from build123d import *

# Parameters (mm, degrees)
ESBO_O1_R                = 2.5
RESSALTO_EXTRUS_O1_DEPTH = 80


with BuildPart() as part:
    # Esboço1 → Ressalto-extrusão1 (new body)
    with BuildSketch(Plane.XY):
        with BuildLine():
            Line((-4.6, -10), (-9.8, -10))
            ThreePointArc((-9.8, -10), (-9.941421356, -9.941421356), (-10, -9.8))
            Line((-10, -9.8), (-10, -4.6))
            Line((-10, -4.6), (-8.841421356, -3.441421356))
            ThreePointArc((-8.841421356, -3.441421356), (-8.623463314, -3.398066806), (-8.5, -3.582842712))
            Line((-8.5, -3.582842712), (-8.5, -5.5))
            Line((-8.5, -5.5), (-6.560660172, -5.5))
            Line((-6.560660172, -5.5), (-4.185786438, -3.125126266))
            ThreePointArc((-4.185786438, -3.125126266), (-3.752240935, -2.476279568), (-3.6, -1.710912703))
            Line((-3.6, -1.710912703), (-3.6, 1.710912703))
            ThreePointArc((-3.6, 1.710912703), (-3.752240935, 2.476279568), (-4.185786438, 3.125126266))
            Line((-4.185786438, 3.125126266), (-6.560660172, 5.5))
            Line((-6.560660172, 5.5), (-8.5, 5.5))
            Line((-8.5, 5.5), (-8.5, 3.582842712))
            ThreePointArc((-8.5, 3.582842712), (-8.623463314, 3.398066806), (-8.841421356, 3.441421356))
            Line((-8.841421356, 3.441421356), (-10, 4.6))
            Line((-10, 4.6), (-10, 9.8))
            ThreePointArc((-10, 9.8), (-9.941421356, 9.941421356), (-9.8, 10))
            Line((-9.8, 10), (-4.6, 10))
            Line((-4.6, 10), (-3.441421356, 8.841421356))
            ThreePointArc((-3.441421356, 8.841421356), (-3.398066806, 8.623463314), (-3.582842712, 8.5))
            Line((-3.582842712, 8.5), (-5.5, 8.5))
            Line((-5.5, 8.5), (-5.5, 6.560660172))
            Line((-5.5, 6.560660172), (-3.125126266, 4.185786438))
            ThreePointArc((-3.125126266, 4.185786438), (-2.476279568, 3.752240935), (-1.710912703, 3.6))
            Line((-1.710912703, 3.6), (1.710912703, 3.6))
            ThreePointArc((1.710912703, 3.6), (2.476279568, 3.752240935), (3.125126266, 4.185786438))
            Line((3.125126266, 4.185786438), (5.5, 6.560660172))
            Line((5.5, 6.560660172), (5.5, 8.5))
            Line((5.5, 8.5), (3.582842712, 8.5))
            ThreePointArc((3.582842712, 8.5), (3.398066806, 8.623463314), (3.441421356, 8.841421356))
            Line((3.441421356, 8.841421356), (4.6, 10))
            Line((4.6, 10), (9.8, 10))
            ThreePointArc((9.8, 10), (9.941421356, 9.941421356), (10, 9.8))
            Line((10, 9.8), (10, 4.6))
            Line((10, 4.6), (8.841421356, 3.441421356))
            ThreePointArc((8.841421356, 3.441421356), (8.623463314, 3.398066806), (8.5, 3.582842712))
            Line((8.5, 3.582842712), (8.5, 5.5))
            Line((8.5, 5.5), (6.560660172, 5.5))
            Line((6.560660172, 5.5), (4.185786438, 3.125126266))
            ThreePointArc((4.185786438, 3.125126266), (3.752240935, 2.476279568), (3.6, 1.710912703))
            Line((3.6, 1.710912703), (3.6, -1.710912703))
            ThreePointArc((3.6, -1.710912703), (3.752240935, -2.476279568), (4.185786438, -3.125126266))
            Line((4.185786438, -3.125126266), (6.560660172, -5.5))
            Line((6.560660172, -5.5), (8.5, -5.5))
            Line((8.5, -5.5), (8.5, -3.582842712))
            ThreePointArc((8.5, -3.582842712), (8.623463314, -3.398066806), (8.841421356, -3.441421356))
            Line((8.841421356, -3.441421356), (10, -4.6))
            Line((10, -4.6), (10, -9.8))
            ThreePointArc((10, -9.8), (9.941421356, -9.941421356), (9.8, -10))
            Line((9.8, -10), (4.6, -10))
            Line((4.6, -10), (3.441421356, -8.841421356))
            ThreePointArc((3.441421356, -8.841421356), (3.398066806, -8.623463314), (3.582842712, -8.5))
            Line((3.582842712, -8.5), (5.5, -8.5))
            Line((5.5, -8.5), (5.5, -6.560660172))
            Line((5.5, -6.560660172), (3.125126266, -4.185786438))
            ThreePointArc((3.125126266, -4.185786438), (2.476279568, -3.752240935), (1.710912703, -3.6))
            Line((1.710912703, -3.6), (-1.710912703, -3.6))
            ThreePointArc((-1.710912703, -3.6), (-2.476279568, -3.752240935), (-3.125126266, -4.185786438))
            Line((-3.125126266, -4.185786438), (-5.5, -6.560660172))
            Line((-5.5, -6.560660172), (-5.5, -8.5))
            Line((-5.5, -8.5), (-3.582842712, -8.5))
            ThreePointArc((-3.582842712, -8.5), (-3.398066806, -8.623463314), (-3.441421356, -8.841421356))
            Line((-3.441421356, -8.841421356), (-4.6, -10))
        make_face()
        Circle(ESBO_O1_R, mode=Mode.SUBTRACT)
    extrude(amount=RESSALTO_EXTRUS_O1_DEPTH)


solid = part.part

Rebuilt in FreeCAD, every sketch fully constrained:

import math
import FreeCAD as App
import Part
import Sketcher

V = App.Vector
Q = App.Units.Quantity

doc = App.newDocument("Part")
body = doc.addObject("PartDesign::Body", "Body")

# Sketch on XY plane
sketch1 = doc.addObject("Sketcher::SketchObject", "Sketch")
body.addObject(sketch1)
sketch1.AttachmentSupport = (doc.XY_Plane, [""])
sketch1.MapMode = "FlatFace"
sketch1.addGeometry(Part.LineSegment(V(-9.8, -10, 0), V(-4.6, -10, 0)), False)
sketch1.addGeometry(Part.LineSegment(V(-4.6, -10, 0), V(-3.44, -8.84, 0)), False)
sketch1.addGeometry(Part.ArcOfCircle(Part.Circle(V(-3.58, -8.7, 0), V(0, 0, 1), 0.2), math.radians(-45), math.radians(90)), False)
sketch1.addGeometry(Part.LineSegment(V(-3.58, -8.5, 0), V(-5.5, -8.5, 0)), False)
sketch1.addGeometry(Part.LineSegment(V(-5.5, -8.5, 0), V(-5.5, -6.56, 0)), False)
sketch1.addGeometry(Part.LineSegment(V(-5.5, -6.56, 0), V(-3.13, -4.19, 0)), False)
sketch1.addGeometry(Part.ArcOfCircle(Part.Circle(V(-1.71, -5.6, 0), V(0, 0, 1), 2), math.radians(90), math.radians(135)), False)
sketch1.addGeometry(Part.LineSegment(V(-1.71, -3.6, 0), V(1.71, -3.6, 0)), False)
sketch1.addGeometry(Part.ArcOfCircle(Part.Circle(V(1.71, -5.6, 0), V(0, 0, 1), 2), math.radians(45), math.radians(90)), False)
sketch1.addGeometry(Part.LineSegment(V(3.13, -4.19, 0), V(5.5, -6.56, 0)), False)
sketch1.addGeometry(Part.LineSegment(V(5.5, -6.56, 0), V(5.5, -8.5, 0)), False)
sketch1.addGeometry(Part.LineSegment(V(5.5, -8.5, 0), V(3.58, -8.5, 0)), False)
sketch1.addGeometry(Part.ArcOfCircle(Part.Circle(V(3.58, -8.7, 0), V(0, 0, 1), 0.2), math.radians(90), math.radians(225)), False)
sketch1.addGeometry(Part.LineSegment(V(3.44, -8.84, 0), V(4.6, -10, 0)), False)
sketch1.addGeometry(Part.LineSegment(V(4.6, -10, 0), V(9.8, -10, 0)), False)
sketch1.addGeometry(Part.ArcOfCircle(Part.Circle(V(9.8, -9.8, 0), V(0, 0, 1), 0.2), math.radians(-90), math.radians(0)), False)
sketch1.addGeometry(Part.LineSegment(V(10, -9.8, 0), V(10, -4.6, 0)), False)
sketch1.addGeometry(Part.LineSegment(V(10, -4.6, 0), V(8.84, -3.44, 0)), False)
sketch1.addGeometry(Part.ArcOfCircle(Part.Circle(V(8.7, -3.58, 0), V(0, 0, 1), 0.2), math.radians(45), math.radians(180)), False)
sketch1.addGeometry(Part.LineSegment(V(8.5, -3.58, 0), V(8.5, -5.5, 0)), False)
sketch1.addGeometry(Part.LineSegment(V(8.5, -5.5, 0), V(6.56, -5.5, 0)), False)
sketch1.addGeometry(Part.LineSegment(V(6.56, -5.5, 0), V(4.19, -3.13, 0)), False)
sketch1.addGeometry(Part.ArcOfCircle(Part.Circle(V(5.6, -1.71, 0), V(0, 0, 1), 2), math.radians(180), math.radians(225)), False)
sketch1.addGeometry(Part.LineSegment(V(3.6, -1.71, 0), V(3.6, 1.71, 0)), False)
sketch1.addGeometry(Part.ArcOfCircle(Part.Circle(V(5.6, 1.71, 0), V(0, 0, 1), 2), math.radians(135), math.radians(180)), False)
sketch1.addGeometry(Part.LineSegment(V(4.19, 3.13, 0), V(6.56, 5.5, 0)), False)
sketch1.addGeometry(Part.LineSegment(V(6.56, 5.5, 0), V(8.5, 5.5, 0)), False)
sketch1.addGeometry(Part.LineSegment(V(8.5, 5.5, 0), V(8.5, 3.58, 0)), False)
sketch1.addGeometry(Part.ArcOfCircle(Part.Circle(V(8.7, 3.58, 0), V(0, 0, 1), 0.2), math.radians(-180), math.radians(-45)), False)
sketch1.addGeometry(Part.LineSegment(V(8.84, 3.44, 0), V(10, 4.6, 0)), False)
sketch1.addGeometry(Part.LineSegment(V(10, 4.6, 0), V(10, 9.8, 0)), False)
sketch1.addGeometry(Part.ArcOfCircle(Part.Circle(V(9.8, 9.8, 0), V(0, 0, 1), 0.2), math.radians(0), math.radians(90)), False)
sketch1.addGeometry(Part.LineSegment(V(9.8, 10, 0), V(4.6, 10, 0)), False)
sketch1.addGeometry(Part.LineSegment(V(4.6, 10, 0), V(3.44, 8.84, 0)), False)
sketch1.addGeometry(Part.ArcOfCircle(Part.Circle(V(3.58, 8.7, 0), V(0, 0, 1), 0.2), math.radians(135), math.radians(270)), False)
sketch1.addGeometry(Part.LineSegment(V(3.58, 8.5, 0), V(5.5, 8.5, 0)), False)
sketch1.addGeometry(Part.LineSegment(V(5.5, 8.5, 0), V(5.5, 6.56, 0)), False)
sketch1.addGeometry(Part.LineSegment(V(5.5, 6.56, 0), V(3.13, 4.19, 0)), False)
sketch1.addGeometry(Part.ArcOfCircle(Part.Circle(V(1.71, 5.6, 0), V(0, 0, 1), 2), math.radians(-90), math.radians(-45)), False)
sketch1.addGeometry(Part.LineSegment(V(1.71, 3.6, 0), V(-1.71, 3.6, 0)), False)
sketch1.addGeometry(Part.ArcOfCircle(Part.Circle(V(-1.71, 5.6, 0), V(0, 0, 1), 2), math.radians(-135), math.radians(-90)), False)
sketch1.addGeometry(Part.LineSegment(V(-3.13, 4.19, 0), V(-5.5, 6.56, 0)), False)
sketch1.addGeometry(Part.LineSegment(V(-5.5, 6.56, 0), V(-5.5, 8.5, 0)), False)
sketch1.addGeometry(Part.LineSegment(V(-5.5, 8.5, 0), V(-3.58, 8.5, 0)), False)
sketch1.addGeometry(Part.ArcOfCircle(Part.Circle(V(-3.58, 8.7, 0), V(0, 0, 1), 0.2), math.radians(-90), math.radians(45)), False)
sketch1.addGeometry(Part.LineSegment(V(-3.44, 8.84, 0), V(-4.6, 10, 0)), False)
sketch1.addGeometry(Part.LineSegment(V(-4.6, 10, 0), V(-9.8, 10, 0)), False)
sketch1.addGeometry(Part.ArcOfCircle(Part.Circle(V(-9.8, 9.8, 0), V(0, 0, 1), 0.2), math.radians(90), math.radians(180)), False)
sketch1.addGeometry(Part.LineSegment(V(-10, 9.8, 0), V(-10, 4.6, 0)), False)
sketch1.addGeometry(Part.LineSegment(V(-10, 4.6, 0), V(-8.84, 3.44, 0)), False)
sketch1.addGeometry(Part.ArcOfCircle(Part.Circle(V(-8.7, 3.58, 0), V(0, 0, 1), 0.2), math.radians(-135), math.radians(0)), False)
sketch1.addGeometry(Part.LineSegment(V(-8.5, 3.58, 0), V(-8.5, 5.5, 0)), False)
sketch1.addGeometry(Part.LineSegment(V(-8.5, 5.5, 0), V(-6.56, 5.5, 0)), False)
sketch1.addGeometry(Part.LineSegment(V(-6.56, 5.5, 0), V(-4.19, 3.13, 0)), False)
sketch1.addGeometry(Part.ArcOfCircle(Part.Circle(V(-5.6, 1.71, 0), V(0, 0, 1), 2), math.radians(0), math.radians(45)), False)
sketch1.addGeometry(Part.LineSegment(V(-3.6, 1.71, 0), V(-3.6, -1.71, 0)), False)
sketch1.addGeometry(Part.ArcOfCircle(Part.Circle(V(-5.6, -1.71, 0), V(0, 0, 1), 2), math.radians(-45), math.radians(0)), False)
sketch1.addGeometry(Part.LineSegment(V(-4.19, -3.13, 0), V(-6.56, -5.5, 0)), False)
sketch1.addGeometry(Part.LineSegment(V(-6.56, -5.5, 0), V(-8.5, -5.5, 0)), False)
sketch1.addGeometry(Part.LineSegment(V(-8.5, -5.5, 0), V(-8.5, -3.58, 0)), False)
sketch1.addGeometry(Part.ArcOfCircle(Part.Circle(V(-8.7, -3.58, 0), V(0, 0, 1), 0.2), math.radians(0), math.radians(135)), False)
sketch1.addGeometry(Part.LineSegment(V(-8.84, -3.44, 0), V(-10, -4.6, 0)), False)
sketch1.addGeometry(Part.LineSegment(V(-10, -4.6, 0), V(-10, -9.8, 0)), False)
sketch1.addGeometry(Part.ArcOfCircle(Part.Circle(V(-9.8, -9.8, 0), V(0, 0, 1), 0.2), math.radians(-180), math.radians(-90)), False)
sketch1.addGeometry(Part.Circle(V(0, 0, 0), V(0, 0, 1), 2.5), False)
sketch1.addConstraint(Sketcher.Constraint("Coincident", 0, 2, 1, 1))
sketch1.addConstraint(Sketcher.Constraint("Tangent", 1, 2, 2, 1))
sketch1.addConstraint(Sketcher.Constraint("Tangent", 2, 2, 3, 1))
sketch1.addConstraint(Sketcher.Constraint("Coincident", 3, 2, 4, 1))
sketch1.addConstraint(Sketcher.Constraint("Coincident", 4, 2, 5, 1))
sketch1.addConstraint(Sketcher.Constraint("Tangent", 5, 2, 6, 2))
sketch1.addConstraint(Sketcher.Constraint("Tangent", 6, 1, 7, 1))
sketch1.addConstraint(Sketcher.Constraint("Tangent", 7, 2, 8, 2))
sketch1.addConstraint(Sketcher.Constraint("Tangent", 8, 1, 9, 1))
sketch1.addConstraint(Sketcher.Constraint("Coincident", 9, 2, 10, 1))
sketch1.addConstraint(Sketcher.Constraint("Coincident", 10, 2, 11, 1))
sketch1.addConstraint(Sketcher.Constraint("Tangent", 11, 2, 12, 1))
sketch1.addConstraint(Sketcher.Constraint("Tangent", 12, 2, 13, 1))
sketch1.addConstraint(Sketcher.Constraint("Coincident", 13, 2, 14, 1))
sketch1.addConstraint(Sketcher.Constraint("Tangent", 14, 2, 15, 1))
sketch1.addConstraint(Sketcher.Constraint("Tangent", 15, 2, 16, 1))
sketch1.addConstraint(Sketcher.Constraint("Coincident", 16, 2, 17, 1))
sketch1.addConstraint(Sketcher.Constraint("Tangent", 17, 2, 18, 1))
sketch1.addConstraint(Sketcher.Constraint("Tangent", 18, 2, 19, 1))
sketch1.addConstraint(Sketcher.Constraint("Coincident", 19, 2, 20, 1))
sketch1.addConstraint(Sketcher.Constraint("Coincident", 20, 2, 21, 1))
sketch1.addConstraint(Sketcher.Constraint("Tangent", 21, 2, 22, 2))
sketch1.addConstraint(Sketcher.Constraint("Tangent", 22, 1, 23, 1))
sketch1.addConstraint(Sketcher.Constraint("Tangent", 23, 2, 24, 2))
sketch1.addConstraint(Sketcher.Constraint("Tangent", 24, 1, 25, 1))
sketch1.addConstraint(Sketcher.Constraint("Coincident", 25, 2, 26, 1))
sketch1.addConstraint(Sketcher.Constraint("Coincident", 26, 2, 27, 1))
sketch1.addConstraint(Sketcher.Constraint("Tangent", 27, 2, 28, 1))
sketch1.addConstraint(Sketcher.Constraint("Tangent", 28, 2, 29, 1))
sketch1.addConstraint(Sketcher.Constraint("Coincident", 29, 2, 30, 1))
sketch1.addConstraint(Sketcher.Constraint("Tangent", 30, 2, 31, 1))
sketch1.addConstraint(Sketcher.Constraint("Tangent", 31, 2, 32, 1))
sketch1.addConstraint(Sketcher.Constraint("Coincident", 32, 2, 33, 1))
sketch1.addConstraint(Sketcher.Constraint("Tangent", 33, 2, 34, 1))
sketch1.addConstraint(Sketcher.Constraint("Tangent", 34, 2, 35, 1))
sketch1.addConstraint(Sketcher.Constraint("Coincident", 35, 2, 36, 1))
sketch1.addConstraint(Sketcher.Constraint("Coincident", 36, 2, 37, 1))
sketch1.addConstraint(Sketcher.Constraint("Tangent", 37, 2, 38, 2))
sketch1.addConstraint(Sketcher.Constraint("Tangent", 38, 1, 39, 1))
sketch1.addConstraint(Sketcher.Constraint("Tangent", 39, 2, 40, 2))
sketch1.addConstraint(Sketcher.Constraint("Tangent", 40, 1, 41, 1))
sketch1.addConstraint(Sketcher.Constraint("Coincident", 41, 2, 42, 1))
sketch1.addConstraint(Sketcher.Constraint("Coincident", 42, 2, 43, 1))
sketch1.addConstraint(Sketcher.Constraint("Tangent", 43, 2, 44, 1))
sketch1.addConstraint(Sketcher.Constraint("Tangent", 44, 2, 45, 1))
sketch1.addConstraint(Sketcher.Constraint("Coincident", 45, 2, 46, 1))
sketch1.addConstraint(Sketcher.Constraint("Tangent", 46, 2, 47, 1))
sketch1.addConstraint(Sketcher.Constraint("Tangent", 47, 2, 48, 1))
sketch1.addConstraint(Sketcher.Constraint("Coincident", 48, 2, 49, 1))
sketch1.addConstraint(Sketcher.Constraint("Tangent", 49, 2, 50, 1))
sketch1.addConstraint(Sketcher.Constraint("Tangent", 50, 2, 51, 1))
sketch1.addConstraint(Sketcher.Constraint("Coincident", 51, 2, 52, 1))
sketch1.addConstraint(Sketcher.Constraint("Coincident", 52, 2, 53, 1))
sketch1.addConstraint(Sketcher.Constraint("Tangent", 53, 2, 54, 2))
sketch1.addConstraint(Sketcher.Constraint("Tangent", 54, 1, 55, 1))
sketch1.addConstraint(Sketcher.Constraint("Tangent", 55, 2, 56, 2))
sketch1.addConstraint(Sketcher.Constraint("Tangent", 56, 1, 57, 1))
sketch1.addConstraint(Sketcher.Constraint("Coincident", 57, 2, 58, 1))
sketch1.addConstraint(Sketcher.Constraint("Coincident", 58, 2, 59, 1))
sketch1.addConstraint(Sketcher.Constraint("Tangent", 59, 2, 60, 1))
sketch1.addConstraint(Sketcher.Constraint("Tangent", 60, 2, 61, 1))
sketch1.addConstraint(Sketcher.Constraint("Coincident", 61, 2, 62, 1))
sketch1.addConstraint(Sketcher.Constraint("Tangent", 62, 2, 63, 1))
sketch1.addConstraint(Sketcher.Constraint("Tangent", 63, 2, 0, 1))
sketch1.addConstraint(Sketcher.Constraint("Horizontal", 0))
sketch1.addConstraint(Sketcher.Constraint("Horizontal", 3))
sketch1.addConstraint(Sketcher.Constraint("Vertical", 4))
sketch1.addConstraint(Sketcher.Constraint("Horizontal", 7))
sketch1.addConstraint(Sketcher.Constraint("Vertical", 10))
sketch1.addConstraint(Sketcher.Constraint("Horizontal", 11))
sketch1.addConstraint(Sketcher.Constraint("Horizontal", 14))
sketch1.addConstraint(Sketcher.Constraint("Vertical", 16))
sketch1.addConstraint(Sketcher.Constraint("Vertical", 19))
sketch1.addConstraint(Sketcher.Constraint("Horizontal", 20))
sketch1.addConstraint(Sketcher.Constraint("Vertical", 23))
sketch1.addConstraint(Sketcher.Constraint("Horizontal", 26))
sketch1.addConstraint(Sketcher.Constraint("Vertical", 27))
sketch1.addConstraint(Sketcher.Constraint("Vertical", 30))
sketch1.addConstraint(Sketcher.Constraint("Horizontal", 32))
sketch1.addConstraint(Sketcher.Constraint("Horizontal", 35))
sketch1.addConstraint(Sketcher.Constraint("Vertical", 36))
sketch1.addConstraint(Sketcher.Constraint("Horizontal", 39))
sketch1.addConstraint(Sketcher.Constraint("Vertical", 42))
sketch1.addConstraint(Sketcher.Constraint("Horizontal", 43))
sketch1.addConstraint(Sketcher.Constraint("Horizontal", 46))
sketch1.addConstraint(Sketcher.Constraint("Vertical", 48))
sketch1.addConstraint(Sketcher.Constraint("Vertical", 51))
sketch1.addConstraint(Sketcher.Constraint("Horizontal", 52))
sketch1.addConstraint(Sketcher.Constraint("Vertical", 55))
sketch1.addConstraint(Sketcher.Constraint("Horizontal", 58))
sketch1.addConstraint(Sketcher.Constraint("Vertical", 59))
sketch1.addConstraint(Sketcher.Constraint("Vertical", 62))
sketch1.addConstraint(Sketcher.Constraint("Coincident", 64, 3, -1, 1))
sketch1.addConstraint(Sketcher.Constraint("Equal", 6, 8))
sketch1.addConstraint(Sketcher.Constraint("Equal", 2, 12))
sketch1.addConstraint(Sketcher.Constraint("Equal", 12, 15))
sketch1.addConstraint(Sketcher.Constraint("Equal", 15, 18))
sketch1.addConstraint(Sketcher.Constraint("Equal", 8, 22))
sketch1.addConstraint(Sketcher.Constraint("Equal", 22, 24))
sketch1.addConstraint(Sketcher.Constraint("Equal", 18, 28))
sketch1.addConstraint(Sketcher.Constraint("Equal", 28, 31))
sketch1.addConstraint(Sketcher.Constraint("Equal", 31, 34))
sketch1.addConstraint(Sketcher.Constraint("Equal", 24, 38))
sketch1.addConstraint(Sketcher.Constraint("Equal", 38, 40))
sketch1.addConstraint(Sketcher.Constraint("Equal", 34, 44))
sketch1.addConstraint(Sketcher.Constraint("Equal", 44, 47))
sketch1.addConstraint(Sketcher.Constraint("Equal", 47, 50))
sketch1.addConstraint(Sketcher.Constraint("Equal", 40, 54))
sketch1.addConstraint(Sketcher.Constraint("Equal", 54, 56))
sketch1.addConstraint(Sketcher.Constraint("Equal", 50, 60))
sketch1.addConstraint(Sketcher.Constraint("Equal", 60, 63))
sketch1.addConstraint(Sketcher.Constraint("Symmetric", 2, 3, 34, 3, -1, 1))
sketch1.addConstraint(Sketcher.Constraint("Symmetric", 6, 3, 38, 3, -1, 1))
sketch1.addConstraint(Sketcher.Constraint("Symmetric", 12, 3, 44, 3, -1, 1))
sketch1.addConstraint(Sketcher.Constraint("Symmetric", 15, 3, 47, 3, -1, 1))
sketch1.addConstraint(Sketcher.Constraint("Symmetric", 18, 3, 50, 3, -1, 1))
sketch1.addConstraint(Sketcher.Constraint("Symmetric", 22, 3, 54, 3, -1, 1))
sketch1.addConstraint(Sketcher.Constraint("Symmetric", 28, 3, 60, 3, -1, 1))
sketch1.addConstraint(Sketcher.Constraint("Symmetric", 31, 3, 63, 3, -1, 1))
sketch1.addConstraint(Sketcher.Constraint("Symmetric", 4, 2, 36, 2, -1, 1))
sketch1.addConstraint(Sketcher.Constraint("Symmetric", 8, 1, 40, 1, -1, 1))
sketch1.addConstraint(Sketcher.Constraint("Symmetric", 20, 2, 52, 2, -1, 1))
sketch1.addConstraint(Sketcher.Constraint("Symmetric", 24, 1, 56, 1, -1, 1))
sketch1.addConstraint(Sketcher.Constraint("Symmetric", 2, 3, 12, 3, -2))
sketch1.addConstraint(Sketcher.Constraint("Symmetric", 31, 3, 47, 3, -2))
sketch1.addConstraint(Sketcher.Constraint("Symmetric", 28, 3, 50, 3, -2))
sketch1.addConstraint(Sketcher.Constraint("Symmetric", 5, 2, 8, 1, -2))
sketch1.addConstraint(Sketcher.Constraint("Symmetric", 25, 2, 52, 2, -2))
sketch1.addConstraint(Sketcher.Constraint("Parallel", 1, 5))
sketch1.addConstraint(Sketcher.Constraint("Perpendicular", 5, 9))
sketch1.addConstraint(Sketcher.Constraint("Parallel", 9, 13))
sketch1.addConstraint(Sketcher.Constraint("Parallel", 13, 17))
sketch1.addConstraint(Sketcher.Constraint("Parallel", 17, 21))
sketch1.addConstraint(Sketcher.Constraint("Perpendicular", 21, 25))
sketch1.addConstraint(Sketcher.Constraint("Parallel", 25, 29))
sketch1.addConstraint(Sketcher.Constraint("Parallel", 29, 33))
sketch1.addConstraint(Sketcher.Constraint("Parallel", 41, 45))
sketch1.addConstraint(Sketcher.Constraint("Parallel", 45, 49))
sketch1.addConstraint(Sketcher.Constraint("Parallel", 57, 61))
sketch1.addConstraint(Sketcher.Constraint("Horizontal", 4, 2, 9, 2))
sketch1.addConstraint(Sketcher.Constraint("Horizontal", 36, 2, 41, 2))
sketch1.addConstraint(Sketcher.Constraint("Horizontal", 20, 2, 57, 2))
sketch1.addConstraint(Sketcher.Constraint("Equal", 58, 4))
sketch1.addConstraint(Sketcher.Constraint("Equal", 46, 16))
sketch1.addConstraint(Sketcher.Constraint("Equal", 43, 19))
sketch1.addConstraint(Sketcher.Constraint("Equal", 39, 23))
sketch1.addConstraint(Sketcher.Constraint("Equal", 13, 17))
sketch1.addConstraint(Sketcher.Constraint("Equal", 9, 21))
sketch1.addConstraint(Sketcher.Constraint("Diameter", 64, Q("5 mm")))
sketch1.addConstraint(Sketcher.Constraint("Radius", 6, Q("2 mm")))
sketch1.addConstraint(Sketcher.Constraint("Radius", 2, Q("0.2 mm")))
sketch1.addConstraint(Sketcher.Constraint("DistanceX", 0, 1, 0, 2, Q("5.2 mm")))
sketch1.addConstraint(Sketcher.Constraint("DistanceY", 0, 2, -1, 1, Q("10 mm")))
sketch1.addConstraint(Sketcher.Constraint("DistanceY", 2, 3, -1, 1, Q("8.7 mm")))
sketch1.addConstraint(Sketcher.Constraint("DistanceY", 6, 3, -1, 1, Q("5.6 mm")))
sketch1.addConstraint(Sketcher.Constraint("DistanceX", 3, 2, -1, 1, Q("5.5 mm")))
sketch1.addConstraint(Sketcher.Constraint("DistanceX", 20, 2, 20, 1, Q("1.93934 mm")))
pad1 = doc.addObject("PartDesign::Pad", "Pad")
body.addObject(pad1)
pad1.Profile = sketch1
pad1.Length = 80

doc.recompute()
